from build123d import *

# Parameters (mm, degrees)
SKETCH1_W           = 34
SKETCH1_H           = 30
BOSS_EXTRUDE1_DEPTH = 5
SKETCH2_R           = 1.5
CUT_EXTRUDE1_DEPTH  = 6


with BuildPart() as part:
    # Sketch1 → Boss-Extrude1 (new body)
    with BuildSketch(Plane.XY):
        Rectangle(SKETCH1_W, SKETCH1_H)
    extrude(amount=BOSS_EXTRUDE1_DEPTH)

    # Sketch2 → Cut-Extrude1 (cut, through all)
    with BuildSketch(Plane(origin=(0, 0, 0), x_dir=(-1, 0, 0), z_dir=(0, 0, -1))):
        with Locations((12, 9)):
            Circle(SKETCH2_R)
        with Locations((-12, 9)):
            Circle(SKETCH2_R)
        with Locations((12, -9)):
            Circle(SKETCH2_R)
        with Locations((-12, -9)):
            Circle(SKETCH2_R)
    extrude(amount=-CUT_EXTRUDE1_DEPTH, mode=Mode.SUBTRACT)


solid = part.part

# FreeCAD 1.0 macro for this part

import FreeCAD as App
import Part
import Sketcher
Q = App.Units.Quantity

doc = App.newDocument("Part")
body = doc.addObject("PartDesign::Body", "Body")

# Sketch on XY plane
sketch1 = body.newObject("Sketcher::SketchObject", "Sketch")
sketch1.AttachmentSupport = (doc.getObject("XY_Plane"), [""])
sketch1.MapMode = "FlatFace"
sketch1.addGeometry(Part.LineSegment(App.Vector(-17, 15, 0), App.Vector(-17, -15, 0)), False)
sketch1.addGeometry(Part.LineSegment(App.Vector(-17, -15, 0), App.Vector(17, -15, 0)), False)
sketch1.addGeometry(Part.LineSegment(App.Vector(17, -15, 0), App.Vector(17, 15, 0)), False)
sketch1.addGeometry(Part.LineSegment(App.Vector(17, 15, 0), App.Vector(-17, 15, 0)), False)
sketch1.addConstraint(Sketcher.Constraint("Coincident", 0, 2, 1, 1))
sketch1.addConstraint(Sketcher.Constraint("Coincident", 1, 2, 2, 1))
sketch1.addConstraint(Sketcher.Constraint("Coincident", 2, 2, 3, 1))
sketch1.addConstraint(Sketcher.Constraint("Coincident", 3, 2, 0, 1))
sketch1.addConstraint(Sketcher.Constraint("Vertical", 0))
sketch1.addConstraint(Sketcher.Constraint("Horizontal", 1))
sketch1.addConstraint(Sketcher.Constraint("Vertical", 2))
sketch1.addConstraint(Sketcher.Constraint("Horizontal", 3))
sketch1.addConstraint(Sketcher.Constraint("Symmetric", 0, 2, 2, 2, -1, 1))
sketch1.addConstraint(Sketcher.Constraint("DistanceX", 1, 1, 1, 2, Q("34 mm")))
sketch1.addConstraint(Sketcher.Constraint("DistanceY", 0, 2, 0, 1, Q("30 mm")))
pad1 = body.newObject("PartDesign::Pad", "Pad")
pad1.Profile = sketch1
pad1.Length = 5

# Sketch on XY plane
sketch2 = body.newObject("Sketcher::SketchObject", "Sketch001")
sketch2.AttachmentSupport = (doc.getObject("XY_Plane"), [""])
sketch2.MapMode = "FlatFace"
sketch2.addGeometry(Part.Circle(App.Vector(-12, 9, 0), App.Vector(0, 0, 1), 1.5), False)
sketch2.addGeometry(Part.Circle(App.Vector(12, 9, 0), App.Vector(0, 0, 1), 1.5), False)
sketch2.addGeometry(Part.Circle(App.Vector(-12, -9, 0), App.Vector(0, 0, 1), 1.5), False)
sketch2.addGeometry(Part.Circle(App.Vector(12, -9, 0), App.Vector(0, 0, 1), 1.5), False)
sketch2.addConstraint(Sketcher.Constraint("Equal", 0, 1))
sketch2.addConstraint(Sketcher.Constraint("Equal", 1, 2))
sketch2.addConstraint(Sketcher.Constraint("Equal", 2, 3))
sketch2.addConstraint(Sketcher.Constraint("Symmetric", 1, 3, 2, 3, -1, 1))
sketch2.addConstraint(Sketcher.Constraint("Symmetric", 0, 3, 3, 3, -1, 1))
sketch2.addConstraint(Sketcher.Constraint("Symmetric", 0, 3, 1, 3, -2))
sketch2.addConstraint(Sketcher.Constraint("Diameter", 0, Q("3 mm")))
sketch2.addConstraint(Sketcher.Constraint("DistanceX", 0, 3, -1, 1, Q("12 mm")))
sketch2.addConstraint(Sketcher.Constraint("DistanceY", -1, 1, 0, 3, Q("9 mm")))
pocket1 = body.newObject("PartDesign::Pocket", "Pocket")
pocket1.Profile = sketch2
pocket1.Type = "ThroughAll"
pocket1.Reversed = True

doc.recompute()
